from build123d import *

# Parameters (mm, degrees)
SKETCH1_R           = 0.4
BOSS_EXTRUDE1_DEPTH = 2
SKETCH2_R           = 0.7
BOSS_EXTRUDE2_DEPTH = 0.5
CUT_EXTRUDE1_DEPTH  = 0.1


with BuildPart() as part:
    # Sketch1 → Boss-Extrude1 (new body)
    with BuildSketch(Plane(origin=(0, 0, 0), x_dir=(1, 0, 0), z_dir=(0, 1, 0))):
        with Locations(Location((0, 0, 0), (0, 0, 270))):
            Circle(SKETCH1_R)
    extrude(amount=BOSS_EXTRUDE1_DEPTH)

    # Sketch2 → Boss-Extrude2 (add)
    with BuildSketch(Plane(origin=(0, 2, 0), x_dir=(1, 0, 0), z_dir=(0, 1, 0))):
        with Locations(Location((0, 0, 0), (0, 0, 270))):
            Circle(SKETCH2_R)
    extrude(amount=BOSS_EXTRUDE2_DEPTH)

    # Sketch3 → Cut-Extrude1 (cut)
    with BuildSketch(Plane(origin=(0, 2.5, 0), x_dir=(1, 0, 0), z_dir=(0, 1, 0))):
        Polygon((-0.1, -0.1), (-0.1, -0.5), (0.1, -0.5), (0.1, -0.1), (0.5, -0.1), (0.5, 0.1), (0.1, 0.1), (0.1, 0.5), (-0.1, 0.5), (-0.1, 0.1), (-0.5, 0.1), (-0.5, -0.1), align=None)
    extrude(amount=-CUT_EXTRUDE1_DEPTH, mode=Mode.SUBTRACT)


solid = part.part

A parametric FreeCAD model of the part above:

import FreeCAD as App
import Part
import Sketcher
from FreeCAD import Vector
Q = App.Units.Quantity


def add_polygon(sketch, points):
    """Adds a closed chain of lines whose ends are joined by coincident constraints."""
    first, n = sketch.GeometryCount, len(points)
    for a, b in zip(points, points[1:] + points[:1]):
        sketch.addGeometry(Part.LineSegment(App.Vector(*a, 0), App.Vector(*b, 0)), False)
    for i in range(n):
        sketch.addConstraint(Sketcher.Constraint("Coincident", first + i, 2, first + (i + 1) % n, 1))

doc = App.newDocument("Part")
body = doc.addObject("PartDesign::Body", "Body")

sketch1 = body.newObject("Sketcher::SketchObject", "Sketch")
sketch1.AttachmentSupport = (doc.getObject("XZ_Plane"), [""])
sketch1.MapMode = "FlatFace"
sketch1.addGeometry(Part.Circle(Vector(0, 0, 0), Vector(0, 0, 1), 0.4), False)
sketch1.addConstraint([
    Sketcher.Constraint("Coincident", 0, 3, -1, 1),
    Sketcher.Constraint("Diameter", 0, Q("0.8 mm")),
])
pad1 = body.newObject("PartDesign::Pad", "Pad")
pad1.Profile = sketch1
pad1.Length = 2
pad1.Reversed = True

sketch2 = body.newObject("Sketcher::SketchObject", "Sketch001")
sketch2.AttachmentSupport = (doc.getObject("XZ_Plane"), [""])
sketch2.MapMode = "FlatFace"
sketch2.AttachmentOffset = App.Placement(Vector(0, 0, -2), App.Rotation())
sketch2.addGeometry(Part.Circle(Vector(0, 0, 0), Vector(0, 0, 1), 0.7), False)
sketch2.addConstraint([
    Sketcher.Constraint("Coincident", 0, 3, -1, 1),
    Sketcher.Constraint("Diameter", 0, Q("1.4 mm")),
])
pad2 = body.newObject("PartDesign::Pad", "Pad001")
pad2.Profile = sketch2
pad2.Length = 0.5
pad2.Reversed = True

sketch3 = body.newObject("Sketcher::SketchObject", "Sketch002")
sketch3.AttachmentSupport = (doc.getObject("XZ_Plane"), [""])
sketch3.MapMode = "FlatFace"
sketch3.AttachmentOffset = App.Placement(Vector(0, 0, -2.5), App.Rotation())
add_polygon(sketch3, [(-0.1, 0.1), (-0.1, 0.5), (0.1, 0.5), (0.1, 0.1), (0.5, 0.1), (0.5, -0.1), (0.1, -0.1), (0.1, -0.5), (-0.1, -0.5), (-0.1, -0.1), (-0.5, -0.1), (-0.5, 0.1)])
sketch3.addConstraint([
    Sketcher.Constraint("Vertical", 0),
    Sketcher.Constraint("Horizontal", 1),
    Sketcher.Constraint("Vertical", 2),
    Sketcher.Constraint("Horizontal", 3),
    Sketcher.Constraint("Vertical", 4),
    Sketcher.Constraint("Horizontal", 5),
    Sketcher.Constraint("Vertical", 6),
    Sketcher.Constraint("Horizontal", 7),
    Sketcher.Constraint("Vertical", 8),
    Sketcher.Constraint("Horizontal", 9),
    Sketcher.Constraint("Vertical", 10),
    Sketcher.Constraint("Horizontal", 11),
    Sketcher.Constraint("Symmetric", 0, 2, 6, 2, -1, 1),
    Sketcher.Constraint("Symmetric", 2, 2, 8, 2, -1, 1),
    Sketcher.Constraint("Symmetric", 4, 2, 10, 2, -1, 1),
    Sketcher.Constraint("Symmetric", 5, 2, 8, 2, -2),
    Sketcher.Constraint("Equal", 11, 0),
    Sketcher.Constraint("Equal", 7, 4),
    Sketcher.Constraint("DistanceX", 1, 1, 1, 2, Q("0.2 mm")),
    Sketcher.Constraint("DistanceX", 3, 1, 3, 2, Q("0.4 mm")),
])
pocket1 = body.newObject("PartDesign::Pocket", "Pocket")
pocket1.Profile = sketch3
pocket1.Length = 0.1
pocket1.Reversed = True

doc.recompute()
